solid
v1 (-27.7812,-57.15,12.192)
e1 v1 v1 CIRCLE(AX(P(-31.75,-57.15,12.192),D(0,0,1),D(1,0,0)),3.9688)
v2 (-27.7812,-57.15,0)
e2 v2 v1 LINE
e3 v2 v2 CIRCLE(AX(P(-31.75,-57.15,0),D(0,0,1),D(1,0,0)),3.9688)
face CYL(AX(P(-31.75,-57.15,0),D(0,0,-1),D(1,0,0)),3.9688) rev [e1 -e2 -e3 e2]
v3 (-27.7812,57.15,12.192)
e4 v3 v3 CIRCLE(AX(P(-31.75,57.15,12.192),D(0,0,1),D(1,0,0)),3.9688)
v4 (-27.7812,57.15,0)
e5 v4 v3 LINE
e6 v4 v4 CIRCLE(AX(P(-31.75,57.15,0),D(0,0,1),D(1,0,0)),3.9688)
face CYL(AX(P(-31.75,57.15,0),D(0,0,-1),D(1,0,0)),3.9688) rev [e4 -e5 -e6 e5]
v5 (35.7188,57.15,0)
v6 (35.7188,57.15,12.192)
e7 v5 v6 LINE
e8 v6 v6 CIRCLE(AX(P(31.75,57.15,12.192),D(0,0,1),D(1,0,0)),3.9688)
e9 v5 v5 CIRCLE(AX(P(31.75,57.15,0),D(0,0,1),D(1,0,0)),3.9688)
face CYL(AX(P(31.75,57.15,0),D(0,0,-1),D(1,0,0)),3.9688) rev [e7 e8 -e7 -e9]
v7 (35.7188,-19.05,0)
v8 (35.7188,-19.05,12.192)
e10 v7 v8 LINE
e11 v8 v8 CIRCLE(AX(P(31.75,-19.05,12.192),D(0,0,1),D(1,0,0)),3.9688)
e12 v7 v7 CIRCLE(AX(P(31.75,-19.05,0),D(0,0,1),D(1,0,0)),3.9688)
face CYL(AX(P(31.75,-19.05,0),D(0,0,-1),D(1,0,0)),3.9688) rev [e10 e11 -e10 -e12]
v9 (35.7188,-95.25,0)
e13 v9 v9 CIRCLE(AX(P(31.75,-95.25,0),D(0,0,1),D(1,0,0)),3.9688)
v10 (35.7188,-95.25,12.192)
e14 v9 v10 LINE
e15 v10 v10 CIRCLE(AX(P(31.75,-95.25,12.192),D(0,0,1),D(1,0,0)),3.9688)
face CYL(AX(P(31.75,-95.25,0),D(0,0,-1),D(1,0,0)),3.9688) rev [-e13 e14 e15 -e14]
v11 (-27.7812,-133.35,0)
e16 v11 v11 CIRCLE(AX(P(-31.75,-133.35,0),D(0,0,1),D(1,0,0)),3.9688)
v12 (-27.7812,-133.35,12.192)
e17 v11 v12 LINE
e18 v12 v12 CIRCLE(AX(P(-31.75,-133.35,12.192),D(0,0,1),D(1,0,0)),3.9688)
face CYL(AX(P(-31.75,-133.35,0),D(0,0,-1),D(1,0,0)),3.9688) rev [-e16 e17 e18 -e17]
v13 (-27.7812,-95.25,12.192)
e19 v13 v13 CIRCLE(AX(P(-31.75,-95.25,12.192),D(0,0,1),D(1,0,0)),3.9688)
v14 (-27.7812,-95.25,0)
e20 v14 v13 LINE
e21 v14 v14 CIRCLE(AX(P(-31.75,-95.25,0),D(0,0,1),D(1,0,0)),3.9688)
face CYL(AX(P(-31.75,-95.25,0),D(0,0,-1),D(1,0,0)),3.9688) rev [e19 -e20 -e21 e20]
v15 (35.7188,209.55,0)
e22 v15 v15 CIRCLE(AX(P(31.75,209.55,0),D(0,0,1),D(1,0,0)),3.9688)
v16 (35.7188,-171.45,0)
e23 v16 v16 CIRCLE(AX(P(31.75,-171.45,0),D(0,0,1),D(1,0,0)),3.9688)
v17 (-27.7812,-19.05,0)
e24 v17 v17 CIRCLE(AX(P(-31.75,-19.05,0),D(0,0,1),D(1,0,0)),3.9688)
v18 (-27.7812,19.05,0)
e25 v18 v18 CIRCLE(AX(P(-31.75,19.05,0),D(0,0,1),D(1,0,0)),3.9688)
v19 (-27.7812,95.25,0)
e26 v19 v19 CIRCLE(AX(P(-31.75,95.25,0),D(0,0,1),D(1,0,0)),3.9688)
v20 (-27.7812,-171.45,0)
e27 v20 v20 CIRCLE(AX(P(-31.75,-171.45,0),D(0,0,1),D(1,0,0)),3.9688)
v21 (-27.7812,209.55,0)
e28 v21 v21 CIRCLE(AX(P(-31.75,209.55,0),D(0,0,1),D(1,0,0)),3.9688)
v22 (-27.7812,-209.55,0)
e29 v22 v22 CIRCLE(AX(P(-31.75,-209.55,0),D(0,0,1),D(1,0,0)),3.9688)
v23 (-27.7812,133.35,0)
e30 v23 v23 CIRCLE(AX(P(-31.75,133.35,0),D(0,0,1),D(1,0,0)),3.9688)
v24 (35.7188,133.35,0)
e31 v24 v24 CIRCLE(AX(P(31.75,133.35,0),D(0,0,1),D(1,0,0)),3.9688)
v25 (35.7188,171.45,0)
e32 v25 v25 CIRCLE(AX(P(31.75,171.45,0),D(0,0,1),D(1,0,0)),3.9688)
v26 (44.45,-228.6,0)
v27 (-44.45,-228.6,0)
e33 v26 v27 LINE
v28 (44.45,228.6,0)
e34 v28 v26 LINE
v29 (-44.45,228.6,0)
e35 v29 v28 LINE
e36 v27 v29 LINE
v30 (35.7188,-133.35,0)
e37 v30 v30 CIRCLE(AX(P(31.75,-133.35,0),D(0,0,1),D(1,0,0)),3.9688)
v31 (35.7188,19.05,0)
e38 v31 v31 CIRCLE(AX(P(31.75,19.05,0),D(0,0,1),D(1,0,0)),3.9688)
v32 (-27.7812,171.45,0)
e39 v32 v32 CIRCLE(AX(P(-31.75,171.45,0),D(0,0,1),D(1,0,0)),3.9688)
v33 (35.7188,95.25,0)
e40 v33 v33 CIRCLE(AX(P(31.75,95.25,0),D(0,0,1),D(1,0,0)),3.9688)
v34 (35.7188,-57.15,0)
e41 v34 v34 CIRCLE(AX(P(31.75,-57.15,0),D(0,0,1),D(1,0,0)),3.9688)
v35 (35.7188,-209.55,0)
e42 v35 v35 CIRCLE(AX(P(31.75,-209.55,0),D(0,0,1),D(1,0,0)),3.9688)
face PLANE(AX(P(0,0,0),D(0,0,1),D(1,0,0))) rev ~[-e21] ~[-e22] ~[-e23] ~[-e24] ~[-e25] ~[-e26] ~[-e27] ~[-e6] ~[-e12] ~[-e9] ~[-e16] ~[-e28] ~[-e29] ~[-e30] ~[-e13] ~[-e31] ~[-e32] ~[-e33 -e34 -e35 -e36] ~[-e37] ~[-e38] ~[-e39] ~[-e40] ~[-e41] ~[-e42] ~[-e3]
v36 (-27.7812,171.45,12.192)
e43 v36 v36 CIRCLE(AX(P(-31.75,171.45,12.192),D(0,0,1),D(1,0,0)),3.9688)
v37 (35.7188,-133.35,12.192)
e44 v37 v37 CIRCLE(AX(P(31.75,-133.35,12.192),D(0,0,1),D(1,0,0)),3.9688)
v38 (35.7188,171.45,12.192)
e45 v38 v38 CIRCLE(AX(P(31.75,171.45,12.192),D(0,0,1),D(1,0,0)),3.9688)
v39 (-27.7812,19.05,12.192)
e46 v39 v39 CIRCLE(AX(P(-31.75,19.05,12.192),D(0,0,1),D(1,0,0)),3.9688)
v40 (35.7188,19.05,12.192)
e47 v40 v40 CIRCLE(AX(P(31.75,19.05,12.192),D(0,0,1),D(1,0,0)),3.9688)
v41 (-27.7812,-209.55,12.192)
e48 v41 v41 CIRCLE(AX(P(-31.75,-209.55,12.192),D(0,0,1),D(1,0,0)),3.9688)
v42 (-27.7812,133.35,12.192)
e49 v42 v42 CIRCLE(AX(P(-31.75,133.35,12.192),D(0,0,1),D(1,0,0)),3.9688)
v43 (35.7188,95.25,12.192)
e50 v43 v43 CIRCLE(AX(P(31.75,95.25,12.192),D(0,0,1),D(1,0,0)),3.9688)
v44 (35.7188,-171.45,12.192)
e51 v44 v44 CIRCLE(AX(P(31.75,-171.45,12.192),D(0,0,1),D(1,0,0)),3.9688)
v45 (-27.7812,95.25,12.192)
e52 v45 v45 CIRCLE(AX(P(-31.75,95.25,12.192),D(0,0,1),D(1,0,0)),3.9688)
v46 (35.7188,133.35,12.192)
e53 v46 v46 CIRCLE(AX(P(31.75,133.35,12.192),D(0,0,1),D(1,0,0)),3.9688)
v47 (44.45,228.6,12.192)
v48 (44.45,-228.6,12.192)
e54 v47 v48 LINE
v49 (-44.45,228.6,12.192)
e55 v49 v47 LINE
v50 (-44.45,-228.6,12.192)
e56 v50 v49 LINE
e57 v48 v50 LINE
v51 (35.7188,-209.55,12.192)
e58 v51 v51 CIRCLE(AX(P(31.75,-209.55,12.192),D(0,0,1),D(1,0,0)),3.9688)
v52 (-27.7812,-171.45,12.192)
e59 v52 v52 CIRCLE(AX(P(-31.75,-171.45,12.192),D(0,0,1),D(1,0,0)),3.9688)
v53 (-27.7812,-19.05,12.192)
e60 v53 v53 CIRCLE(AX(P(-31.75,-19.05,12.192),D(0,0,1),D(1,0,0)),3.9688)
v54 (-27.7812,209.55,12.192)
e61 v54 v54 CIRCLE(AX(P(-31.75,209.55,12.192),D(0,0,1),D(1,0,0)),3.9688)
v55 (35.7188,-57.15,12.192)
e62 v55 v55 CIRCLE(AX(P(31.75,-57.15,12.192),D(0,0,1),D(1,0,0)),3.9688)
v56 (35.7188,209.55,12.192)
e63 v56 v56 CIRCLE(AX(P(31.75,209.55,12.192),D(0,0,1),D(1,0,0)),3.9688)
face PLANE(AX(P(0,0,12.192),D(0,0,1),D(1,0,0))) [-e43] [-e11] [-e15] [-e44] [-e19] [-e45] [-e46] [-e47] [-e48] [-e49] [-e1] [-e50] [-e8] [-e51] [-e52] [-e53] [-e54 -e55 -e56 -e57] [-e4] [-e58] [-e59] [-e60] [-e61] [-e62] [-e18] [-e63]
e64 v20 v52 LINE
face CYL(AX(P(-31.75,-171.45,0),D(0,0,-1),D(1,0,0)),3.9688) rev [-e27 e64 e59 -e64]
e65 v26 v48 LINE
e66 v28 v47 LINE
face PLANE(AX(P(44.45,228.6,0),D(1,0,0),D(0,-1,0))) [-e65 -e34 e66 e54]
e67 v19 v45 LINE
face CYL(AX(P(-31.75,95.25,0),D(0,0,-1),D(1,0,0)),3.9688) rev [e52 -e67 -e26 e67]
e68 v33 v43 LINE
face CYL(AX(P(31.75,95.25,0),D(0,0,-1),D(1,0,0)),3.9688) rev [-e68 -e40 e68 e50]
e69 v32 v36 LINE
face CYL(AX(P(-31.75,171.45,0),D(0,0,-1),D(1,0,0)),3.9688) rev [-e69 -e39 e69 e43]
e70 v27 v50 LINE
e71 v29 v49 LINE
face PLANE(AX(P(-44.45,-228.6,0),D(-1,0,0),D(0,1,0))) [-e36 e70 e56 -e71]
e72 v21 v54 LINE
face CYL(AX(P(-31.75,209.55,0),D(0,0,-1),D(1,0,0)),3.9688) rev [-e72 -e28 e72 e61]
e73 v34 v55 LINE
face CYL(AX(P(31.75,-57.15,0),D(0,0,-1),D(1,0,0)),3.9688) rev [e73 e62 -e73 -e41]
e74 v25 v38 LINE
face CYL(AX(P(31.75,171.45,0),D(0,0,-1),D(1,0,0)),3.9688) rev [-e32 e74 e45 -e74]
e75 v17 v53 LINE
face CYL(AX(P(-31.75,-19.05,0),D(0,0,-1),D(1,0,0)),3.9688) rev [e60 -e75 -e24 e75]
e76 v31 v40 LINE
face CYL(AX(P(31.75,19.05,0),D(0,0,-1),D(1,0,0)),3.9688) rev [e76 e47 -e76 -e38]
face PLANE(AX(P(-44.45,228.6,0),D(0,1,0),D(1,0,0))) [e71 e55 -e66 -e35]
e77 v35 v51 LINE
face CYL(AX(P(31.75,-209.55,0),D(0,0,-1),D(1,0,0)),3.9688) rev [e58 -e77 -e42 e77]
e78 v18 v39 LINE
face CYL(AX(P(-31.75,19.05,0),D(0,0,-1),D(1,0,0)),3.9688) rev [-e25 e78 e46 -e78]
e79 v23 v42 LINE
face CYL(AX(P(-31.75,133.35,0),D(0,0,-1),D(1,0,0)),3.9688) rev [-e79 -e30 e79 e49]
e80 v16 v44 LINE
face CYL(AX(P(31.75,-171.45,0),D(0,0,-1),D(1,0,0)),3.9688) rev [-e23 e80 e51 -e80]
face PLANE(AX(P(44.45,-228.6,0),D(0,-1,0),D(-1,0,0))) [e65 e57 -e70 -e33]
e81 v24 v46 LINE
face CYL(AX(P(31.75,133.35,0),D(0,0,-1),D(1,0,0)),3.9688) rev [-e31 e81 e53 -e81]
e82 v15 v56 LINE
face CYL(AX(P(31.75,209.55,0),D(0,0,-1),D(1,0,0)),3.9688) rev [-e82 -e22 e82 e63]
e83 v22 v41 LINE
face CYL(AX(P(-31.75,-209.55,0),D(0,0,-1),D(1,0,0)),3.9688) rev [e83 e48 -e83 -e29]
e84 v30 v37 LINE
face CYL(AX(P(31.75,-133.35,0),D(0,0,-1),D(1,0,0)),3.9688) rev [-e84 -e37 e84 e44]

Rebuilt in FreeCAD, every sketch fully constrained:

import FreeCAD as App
import Part
import Sketcher

V = App.Vector
Q = App.Units.Quantity


def add_polygon(sketch, points):
    """Adds a closed chain of lines whose ends are joined by coincident constraints."""
    first, n = sketch.GeometryCount, len(points)
    for a, b in zip(points, points[1:] + points[:1]):
        sketch.addGeometry(Part.LineSegment(App.Vector(*a, 0), App.Vector(*b, 0)), False)
    for i in range(n):
        sketch.addConstraint(Sketcher.Constraint("Coincident", first + i, 2, first + (i + 1) % n, 1))

doc = App.newDocument("Part")
params = doc.addObject("Spreadsheet::Sheet", "Params")
for row, (alias, value) in enumerate([
    ("sketch1_height", "18 in"),
    ("sketch1_diameter", "0.3125 in"),
    ("sketch1_width", "3.5 in"),
    ("pad1_length", "0.48 in"),
], start=1):
    params.set(f"A{row}", alias)
    params.set(f"B{row}", "=" + value)
    params.setAlias(f"B{row}", alias)

body = doc.addObject("PartDesign::Body", "Body")

sketch1 = body.newObject("Sketcher::SketchObject", "Sketch")
sketch1.AttachmentSupport = (doc.getObject("XY_Plane"), [""])
sketch1.MapMode = "FlatFace"
add_polygon(sketch1, [(-44.5, -228.6), (44.5, -228.6), (44.5, 228.6), (-44.5, 228.6)])
sketch1.addGeometry(Part.Circle(V(-31.8, -209.6, 0), V(0, 0, 1), 4), False)
sketch1.addGeometry(Part.Circle(V(-31.8, -171.4, 0), V(0, 0, 1), 4), False)
sketch1.addGeometry(Part.Circle(V(-31.8, -133.3, 0), V(0, 0, 1), 4), False)
sketch1.addGeometry(Part.Circle(V(-31.8, -95.2, 0), V(0, 0, 1), 4), False)
sketch1.addGeometry(Part.Circle(V(-31.8, -57.1, 0), V(0, 0, 1), 4), False)
sketch1.addGeometry(Part.Circle(V(-31.8, -19.1, 0), V(0, 0, 1), 4), False)
sketch1.addGeometry(Part.Circle(V(31.8, -209.6, 0), V(0, 0, 1), 4), False)
sketch1.addGeometry(Part.Circle(V(31.8, -171.4, 0), V(0, 0, 1), 4), False)
sketch1.addGeometry(Part.Circle(V(31.8, -133.3, 0), V(0, 0, 1), 4), False)
sketch1.addGeometry(Part.Circle(V(31.8, -95.2, 0), V(0, 0, 1), 4), False)
sketch1.addGeometry(Part.Circle(V(31.8, -57.1, 0), V(0, 0, 1), 4), False)
sketch1.addGeometry(Part.Circle(V(31.8, -19.1, 0), V(0, 0, 1), 4), False)
sketch1.addGeometry(Part.Circle(V(-31.8, 19.1, 0), V(0, 0, 1), 4), False)
sketch1.addGeometry(Part.Circle(V(-31.8, 57.1, 0), V(0, 0, 1), 4), False)
sketch1.addGeometry(Part.Circle(V(-31.8, 95.2, 0), V(0, 0, 1), 4), False)
sketch1.addGeometry(Part.Circle(V(-31.8, 133.3, 0), V(0, 0, 1), 4), False)
sketch1.addGeometry(Part.Circle(V(-31.8, 171.4, 0), V(0, 0, 1), 4), False)
sketch1.addGeometry(Part.Circle(V(-31.8, 209.6, 0), V(0, 0, 1), 4), False)
sketch1.addGeometry(Part.Circle(V(31.8, 19.1, 0), V(0, 0, 1), 4), False)
sketch1.addGeometry(Part.Circle(V(31.8, 57.1, 0), V(0, 0, 1), 4), False)
sketch1.addGeometry(Part.Circle(V(31.8, 95.2, 0), V(0, 0, 1), 4), False)
sketch1.addGeometry(Part.Circle(V(31.8, 133.3, 0), V(0, 0, 1), 4), False)
sketch1.addGeometry(Part.Circle(V(31.8, 171.4, 0), V(0, 0, 1), 4), False)
sketch1.addGeometry(Part.Circle(V(31.8, 209.6, 0), V(0, 0, 1), 4), False)
sketch1.addConstraint(Sketcher.Constraint("Horizontal", 0))
sketch1.addConstraint(Sketcher.Constraint("Vertical", 1))
sketch1.addConstraint(Sketcher.Constraint("Horizontal", 2))
sketch1.addConstraint(Sketcher.Constraint("Vertical", 3))
sketch1.addConstraint(Sketcher.Constraint("Equal", 4, 5))
sketch1.addConstraint(Sketcher.Constraint("Equal", 5, 6))
sketch1.addConstraint(Sketcher.Constraint("Equal", 6, 7))
sketch1.addConstraint(Sketcher.Constraint("Equal", 7, 8))
sketch1.addConstraint(Sketcher.Constraint("Equal", 8, 9))
sketch1.addConstraint(Sketcher.Constraint("Equal", 9, 10))
sketch1.addConstraint(Sketcher.Constraint("Equal", 10, 11))
sketch1.addConstraint(Sketcher.Constraint("Equal", 11, 12))
sketch1.addConstraint(Sketcher.Constraint("Equal", 12, 13))
sketch1.addConstraint(Sketcher.Constraint("Equal", 13, 14))
sketch1.addConstraint(Sketcher.Constraint("Equal", 14, 15))
sketch1.addConstraint(Sketcher.Constraint("Equal", 15, 16))
sketch1.addConstraint(Sketcher.Constraint("Equal", 16, 17))
sketch1.addConstraint(Sketcher.Constraint("Equal", 17, 18))
sketch1.addConstraint(Sketcher.Constraint("Equal", 18, 19))
sketch1.addConstraint(Sketcher.Constraint("Equal", 19, 20))
sketch1.addConstraint(Sketcher.Constraint("Equal", 20, 21))
sketch1.addConstraint(Sketcher.Constraint("Equal", 21, 22))
sketch1.addConstraint(Sketcher.Constraint("Equal", 22, 23))
sketch1.addConstraint(Sketcher.Constraint("Equal", 23, 24))
sketch1.addConstraint(Sketcher.Constraint("Equal", 24, 25))
sketch1.addConstraint(Sketcher.Constraint("Equal", 25, 26))
sketch1.addConstraint(Sketcher.Constraint("Equal", 26, 27))
sketch1.addConstraint(Sketcher.Constraint("Symmetric", 15, 3, 16, 3, -1, 1))
sketch1.addConstraint(Sketcher.Constraint("Symmetric", 14, 3, 17, 3, -1, 1))
sketch1.addConstraint(Sketcher.Constraint("Symmetric", 13, 3, 18, 3, -1, 1))
sketch1.addConstraint(Sketcher.Constraint("Symmetric", 12, 3, 19, 3, -1, 1))
sketch1.addConstraint(Sketcher.Constraint("Symmetric", 11, 3, 20, 3, -1, 1))
sketch1.addConstraint(Sketcher.Constraint("Symmetric", 10, 3, 21, 3, -1, 1))
sketch1.addConstraint(Sketcher.Constraint("Symmetric", 9, 3, 22, 3, -1, 1))
sketch1.addConstraint(Sketcher.Constraint("Symmetric", 8, 3, 23, 3, -1, 1))
sketch1.addConstraint(Sketcher.Constraint("Symmetric", 7, 3, 24, 3, -1, 1))
sketch1.addConstraint(Sketcher.Constraint("Symmetric", 6, 3, 25, 3, -1, 1))
sketch1.addConstraint(Sketcher.Constraint("Symmetric", 5, 3, 26, 3, -1, 1))
sketch1.addConstraint(Sketcher.Constraint("Symmetric", 4, 3, 27, 3, -1, 1))
sketch1.addConstraint(Sketcher.Constraint("Symmetric", 0, 2, 2, 2, -1, 1))
sketch1.addConstraint(Sketcher.Constraint("Symmetric", 4, 3, 10, 3, -2))
sketch1.addConstraint(Sketcher.Constraint("Symmetric", 5, 3, 11, 3, -2))
sketch1.addConstraint(Sketcher.Constraint("Symmetric", 6, 3, 12, 3, -2))
sketch1.addConstraint(Sketcher.Constraint("Symmetric", 7, 3, 13, 3, -2))
sketch1.addConstraint(Sketcher.Constraint("Symmetric", 8, 3, 14, 3, -2))
sketch1.addConstraint(Sketcher.Constraint("Symmetric", 9, 3, 15, 3, -2))
sketch1.addConstraint(Sketcher.Constraint("Vertical", 4, 3, 5, 3))
sketch1.addConstraint(Sketcher.Constraint("Vertical", 5, 3, 6, 3))
sketch1.addConstraint(Sketcher.Constraint("Vertical", 6, 3, 7, 3))
sketch1.addConstraint(Sketcher.Constraint("Vertical", 7, 3, 8, 3))
sketch1.addConstraint(Sketcher.Constraint("Vertical", 8, 3, 9, 3))
sketch1.addConstraint(Sketcher.Constraint("DistanceY", 1, 1, 1, 2, Q("18 in")))
sketch1.addConstraint(Sketcher.Constraint("Diameter", 4, Q("0.3125 in")))
sketch1.addConstraint(Sketcher.Constraint("DistanceX", 0, 1, 0, 2, Q("3.5 in")))
sketch1.addConstraint(Sketcher.Constraint("DistanceY", 4, 3, 5, 3, Q("1.5 in")))
sketch1.addConstraint(Sketcher.Constraint("DistanceY", 5, 3, 6, 3, Q("1.5 in")))
sketch1.addConstraint(Sketcher.Constraint("DistanceY", 6, 3, 7, 3, Q("1.5 in")))
sketch1.addConstraint(Sketcher.Constraint("DistanceY", 7, 3, 8, 3, Q("1.5 in")))
sketch1.addConstraint(Sketcher.Constraint("DistanceY", 8, 3, 9, 3, Q("1.5 in")))
sketch1.addConstraint(Sketcher.Constraint("DistanceY", 9, 3, 16, 3, Q("1.5 in")))
sketch1.addConstraint(Sketcher.Constraint("DistanceX", 10, 3, 0, 2, Q("0.5 in")))
sketch1.setExpression("Constraints[55]", "Params.sketch1_height")
sketch1.setExpression("Constraints[56]", "Params.sketch1_diameter")
sketch1.setExpression("Constraints[57]", "Params.sketch1_width")
pad1 = body.newObject("PartDesign::Pad", "Pad")
pad1.Profile = sketch1
pad1.setExpression("Length", "Params.pad1_length")

doc.recompute()
